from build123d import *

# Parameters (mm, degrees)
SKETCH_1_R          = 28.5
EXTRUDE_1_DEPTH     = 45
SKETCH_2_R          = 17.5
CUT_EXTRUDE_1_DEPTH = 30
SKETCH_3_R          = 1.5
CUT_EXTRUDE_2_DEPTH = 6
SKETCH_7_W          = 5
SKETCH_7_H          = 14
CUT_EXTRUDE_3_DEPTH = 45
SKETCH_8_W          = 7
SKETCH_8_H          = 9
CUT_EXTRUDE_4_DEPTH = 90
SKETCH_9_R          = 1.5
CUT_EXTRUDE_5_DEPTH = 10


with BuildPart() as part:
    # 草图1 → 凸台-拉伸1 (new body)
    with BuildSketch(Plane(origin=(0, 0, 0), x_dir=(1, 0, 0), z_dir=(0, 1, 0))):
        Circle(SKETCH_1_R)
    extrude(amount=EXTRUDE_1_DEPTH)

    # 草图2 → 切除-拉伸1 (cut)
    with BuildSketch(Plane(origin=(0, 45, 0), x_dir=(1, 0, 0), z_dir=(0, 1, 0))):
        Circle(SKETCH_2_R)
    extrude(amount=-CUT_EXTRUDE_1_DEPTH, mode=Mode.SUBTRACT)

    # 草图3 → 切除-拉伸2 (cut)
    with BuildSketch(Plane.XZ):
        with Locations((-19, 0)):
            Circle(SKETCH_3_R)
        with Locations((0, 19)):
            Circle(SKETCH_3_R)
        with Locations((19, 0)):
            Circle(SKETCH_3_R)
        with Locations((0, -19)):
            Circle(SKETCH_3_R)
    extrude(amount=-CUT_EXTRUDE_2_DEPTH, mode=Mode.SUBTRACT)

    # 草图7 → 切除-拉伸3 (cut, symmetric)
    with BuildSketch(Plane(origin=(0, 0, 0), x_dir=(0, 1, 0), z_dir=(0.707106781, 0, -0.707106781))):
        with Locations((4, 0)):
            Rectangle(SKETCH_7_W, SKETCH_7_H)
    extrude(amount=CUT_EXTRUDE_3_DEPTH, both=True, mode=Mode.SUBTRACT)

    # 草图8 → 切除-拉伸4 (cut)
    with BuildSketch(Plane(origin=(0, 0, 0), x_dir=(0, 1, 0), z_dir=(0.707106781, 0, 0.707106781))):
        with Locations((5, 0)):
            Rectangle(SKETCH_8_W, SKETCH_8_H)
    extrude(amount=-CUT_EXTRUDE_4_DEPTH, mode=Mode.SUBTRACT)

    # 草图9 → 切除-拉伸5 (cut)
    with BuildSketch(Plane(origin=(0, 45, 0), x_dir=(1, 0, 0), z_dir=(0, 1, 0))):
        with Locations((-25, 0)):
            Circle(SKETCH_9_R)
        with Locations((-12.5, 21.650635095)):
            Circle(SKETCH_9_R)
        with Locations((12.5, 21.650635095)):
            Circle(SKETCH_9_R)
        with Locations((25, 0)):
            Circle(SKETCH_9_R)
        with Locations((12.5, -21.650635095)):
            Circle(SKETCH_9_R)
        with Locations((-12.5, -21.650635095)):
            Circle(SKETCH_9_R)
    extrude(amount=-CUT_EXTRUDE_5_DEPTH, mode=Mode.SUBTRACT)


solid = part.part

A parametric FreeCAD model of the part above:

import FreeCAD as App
import Part
import Sketcher

V = App.Vector
Q = App.Units.Quantity


def add_polygon(sketch, points):
    """Adds a closed chain of lines whose ends are joined by coincident constraints."""
    first, n = sketch.GeometryCount, len(points)
    for a, b in zip(points, points[1:] + points[:1]):
        sketch.addGeometry(Part.LineSegment(App.Vector(*a, 0), App.Vector(*b, 0)), False)
    for i in range(n):
        sketch.addConstraint(Sketcher.Constraint("Coincident", first + i, 2, first + (i + 1) % n, 1))

doc = App.newDocument("Part")
params = doc.addObject("Spreadsheet::Sheet", "Params")
for row, (alias, value) in enumerate([
    ("sketch1_diameter", "57 mm"),
    ("pad1_length", "45 mm"),
    ("sketch2_diameter", "35 mm"),
    ("pocket1_length", "30 mm"),
    ("sketch3_diameter", "3 mm"),
    ("pocket2_length", "6 mm"),
    ("sketch4_width", "5 mm"),
    ("sketch4_height", "14 mm"),
    ("pocket3_length", "90 mm"),
    ("sketch5_width", "7 mm"),
    ("sketch5_height", "9 mm"),
    ("pocket4_length", "90 mm"),
    ("sketch6_diameter", "3 mm"),
    ("pocket5_length", "10 mm"),
], start=1):
    params.set(f"A{row}", alias)
    params.set(f"B{row}", "=" + value)
    params.setAlias(f"B{row}", alias)

body = doc.addObject("PartDesign::Body", "Body")

sketch1 = doc.addObject("Sketcher::SketchObject", "Sketch")
body.addObject(sketch1)
sketch1.AttachmentSupport = (doc.XZ_Plane, [""])
sketch1.MapMode = "FlatFace"
sketch1.addGeometry(Part.Circle(V(0, 0, 0), V(0, 0, 1), 28), False)
sketch1.addConstraint([
    Sketcher.Constraint("Coincident", 0, 3, -1, 1),
    Sketcher.Constraint("Diameter", 0, Q("57 mm")),
])
sketch1.setExpression("Constraints[1]", "Params.sketch1_diameter")
pad1 = doc.addObject("PartDesign::Pad", "Pad")
body.addObject(pad1)
pad1.Profile = sketch1
pad1.setExpression("Length", "Params.pad1_length")
pad1.Reversed = True

sketch2 = doc.addObject("Sketcher::SketchObject", "Sketch001")
body.addObject(sketch2)
sketch2.AttachmentSupport = (doc.XZ_Plane, [""])
sketch2.MapMode = "FlatFace"
sketch2.AttachmentOffset = App.Placement(V(0, 0, -45), App.Rotation())
sketch2.addGeometry(Part.Circle(V(0, 0, 0), V(0, 0, 1), 18), False)
sketch2.addConstraint([
    Sketcher.Constraint("Coincident", 0, 3, -1, 1),
    Sketcher.Constraint("Diameter", 0, Q("35 mm")),
])
sketch2.setExpression("Constraints[1]", "Params.sketch2_diameter")
pocket1 = doc.addObject("PartDesign::Pocket", "Pocket")
body.addObject(pocket1)
pocket1.Profile = sketch2
pocket1.setExpression("Length", "Params.pocket1_length")
pocket1.Reversed = True

sketch3 = doc.addObject("Sketcher::SketchObject", "Sketch002")
body.addObject(sketch3)
sketch3.AttachmentSupport = (doc.XZ_Plane, [""])
sketch3.MapMode = "FlatFace"
sketch3.addGeometry([
    Part.Circle(V(-19, 0, 0), V(0, 0, 1), 1.5),
    Part.Circle(V(0, 19, 0), V(0, 0, 1), 1.5),
    Part.Circle(V(19, 0, 0), V(0, 0, 1), 1.5),
    Part.Circle(V(0, -19, 0), V(0, 0, 1), 1.5),
], False)
sketch3.addConstraint([
    Sketcher.Constraint("Equal", 0, 1),
    Sketcher.Constraint("Equal", 1, 2),
    Sketcher.Constraint("Equal", 2, 3),
    Sketcher.Constraint("Symmetric", 0, 3, 2, 3, -1, 1),
    Sketcher.Constraint("Symmetric", 1, 3, 3, 3, -1, 1),
    Sketcher.Constraint("PointOnObject", 0, 3, -1),
    Sketcher.Constraint("PointOnObject", 1, 3, -2),
    Sketcher.Constraint("Diameter", 0, Q("3 mm")),
    Sketcher.Constraint("DistanceX", 0, 3, -1, 1, Q("19 mm")),
    Sketcher.Constraint("DistanceY", -1, 1, 1, 3, Q("19 mm")),
])
sketch3.setExpression("Constraints[7]", "Params.sketch3_diameter")
pocket2 = doc.addObject("PartDesign::Pocket", "Pocket001")
body.addObject(pocket2)
pocket2.Profile = sketch3
pocket2.setExpression("Length", "Params.pocket2_length")

sketch4 = doc.addObject("Sketcher::SketchObject", "Sketch003")
body.addObject(sketch4)
sketch4.Placement = App.Placement(V(0, 0, 0), App.Rotation(V(0, 1, 0), V(0.707106781, 0, 0.707106781), V(0.707106781, 0, -0.707106781), "ZXY"))
add_polygon(sketch4, [(2, 7), (2, -7), (6, -7), (6, 7)])
sketch4.addConstraint([
    Sketcher.Constraint("Vertical", 0),
    Sketcher.Constraint("Horizontal", 1),
    Sketcher.Constraint("Vertical", 2),
    Sketcher.Constraint("Horizontal", 3),
    Sketcher.Constraint("DistanceX", 1, 1, 1, 2, Q("5 mm")),
    Sketcher.Constraint("DistanceY", 0, 2, 0, 1, Q("14 mm")),
    Sketcher.Constraint("DistanceY", 0, 2, -1, 1, Q("7 mm")),
    Sketcher.Constraint("DistanceX", -1, 1, 0, 2, Q("1.5 mm")),
])
sketch4.setExpression("Constraints[8]", "Params.sketch4_width")
sketch4.setExpression("Constraints[9]", "Params.sketch4_height")
pocket3 = doc.addObject("PartDesign::Pocket", "Pocket002")
body.addObject(pocket3)
pocket3.Profile = sketch4
pocket3.setExpression("Length", "Params.pocket3_length")
pocket3.Midplane = True

sketch5 = doc.addObject("Sketcher::SketchObject", "Sketch004")
body.addObject(sketch5)
sketch5.Placement = App.Placement(V(0, 0, 0), App.Rotation(V(0, 1, 0), V(-0.707106781, 0, 0.707106781), V(0.707106781, 0, 0.707106781), "ZXY"))
add_polygon(sketch5, [(2, 4), (2, -4), (8, -4), (8, 4)])
sketch5.addConstraint([
    Sketcher.Constraint("Vertical", 0),
    Sketcher.Constraint("Horizontal", 1),
    Sketcher.Constraint("Vertical", 2),
    Sketcher.Constraint("Horizontal", 3),
    Sketcher.Constraint("DistanceX", 1, 1, 1, 2, Q("7 mm")),
    Sketcher.Constraint("DistanceY", 0, 2, 0, 1, Q("9 mm")),
    Sketcher.Constraint("DistanceX", -1, 1, 0, 2, Q("1.5 mm")),
    Sketcher.Constraint("DistanceY", 0, 2, -1, 1, Q("4.5 mm")),
])
sketch5.setExpression("Constraints[8]", "Params.sketch5_width")
sketch5.setExpression("Constraints[9]", "Params.sketch5_height")
pocket4 = doc.addObject("PartDesign::Pocket", "Pocket003")
body.addObject(pocket4)
pocket4.Profile = sketch5
pocket4.setExpression("Length", "Params.pocket4_length")

sketch6 = doc.addObject("Sketcher::SketchObject", "Sketch005")
body.addObject(sketch6)
sketch6.AttachmentSupport = (doc.XZ_Plane, [""])
sketch6.MapMode = "FlatFace"
sketch6.AttachmentOffset = App.Placement(V(0, 0, -45), App.Rotation())
sketch6.addGeometry([
    Part.Circle(V(-25, 0, 0), V(0, 0, 1), 1.5),
    Part.Circle(V(-12.5, -21.7, 0), V(0, 0, 1), 1.5),
    Part.Circle(V(12.5, -21.7, 0), V(0, 0, 1), 1.5),
    Part.Circle(V(25, 0, 0), V(0, 0, 1), 1.5),
    Part.Circle(V(12.5, 21.7, 0), V(0, 0, 1), 1.5),
    Part.Circle(V(-12.5, 21.7, 0), V(0, 0, 1), 1.5),
], False)
sketch6.addConstraint([
    Sketcher.Constraint("Equal", 0, 1),
    Sketcher.Constraint("Equal", 1, 2),
    Sketcher.Constraint("Equal", 2, 3),
    Sketcher.Constraint("Equal", 3, 4),
    Sketcher.Constraint("Equal", 4, 5),
    Sketcher.Constraint("Symmetric", 0, 3, 3, 3, -1, 1),
    Sketcher.Constraint("Symmetric", 1, 3, 4, 3, -1, 1),
    Sketcher.Constraint("Symmetric", 2, 3, 5, 3, -1, 1),
    Sketcher.Constraint("Symmetric", 1, 3, 2, 3, -2),
    Sketcher.Constraint("PointOnObject", 0, 3, -1),
    Sketcher.Constraint("Diameter", 0, Q("3 mm")),
    Sketcher.Constraint("DistanceX", 0, 3, -1, 1, Q("25 mm")),
    Sketcher.Constraint("DistanceX", 1, 3, 2, 3, Q("25 mm")),
    Sketcher.Constraint("DistanceY", 2, 3, 4, 3, Q("43.30127 mm")),
])
sketch6.setExpression("Constraints[10]", "Params.sketch6_diameter")
pocket5 = doc.addObject("PartDesign::Pocket", "Pocket004")
body.addObject(pocket5)
pocket5.Profile = sketch6
pocket5.setExpression("Length", "Params.pocket5_length")
pocket5.Reversed = True

doc.recompute()
